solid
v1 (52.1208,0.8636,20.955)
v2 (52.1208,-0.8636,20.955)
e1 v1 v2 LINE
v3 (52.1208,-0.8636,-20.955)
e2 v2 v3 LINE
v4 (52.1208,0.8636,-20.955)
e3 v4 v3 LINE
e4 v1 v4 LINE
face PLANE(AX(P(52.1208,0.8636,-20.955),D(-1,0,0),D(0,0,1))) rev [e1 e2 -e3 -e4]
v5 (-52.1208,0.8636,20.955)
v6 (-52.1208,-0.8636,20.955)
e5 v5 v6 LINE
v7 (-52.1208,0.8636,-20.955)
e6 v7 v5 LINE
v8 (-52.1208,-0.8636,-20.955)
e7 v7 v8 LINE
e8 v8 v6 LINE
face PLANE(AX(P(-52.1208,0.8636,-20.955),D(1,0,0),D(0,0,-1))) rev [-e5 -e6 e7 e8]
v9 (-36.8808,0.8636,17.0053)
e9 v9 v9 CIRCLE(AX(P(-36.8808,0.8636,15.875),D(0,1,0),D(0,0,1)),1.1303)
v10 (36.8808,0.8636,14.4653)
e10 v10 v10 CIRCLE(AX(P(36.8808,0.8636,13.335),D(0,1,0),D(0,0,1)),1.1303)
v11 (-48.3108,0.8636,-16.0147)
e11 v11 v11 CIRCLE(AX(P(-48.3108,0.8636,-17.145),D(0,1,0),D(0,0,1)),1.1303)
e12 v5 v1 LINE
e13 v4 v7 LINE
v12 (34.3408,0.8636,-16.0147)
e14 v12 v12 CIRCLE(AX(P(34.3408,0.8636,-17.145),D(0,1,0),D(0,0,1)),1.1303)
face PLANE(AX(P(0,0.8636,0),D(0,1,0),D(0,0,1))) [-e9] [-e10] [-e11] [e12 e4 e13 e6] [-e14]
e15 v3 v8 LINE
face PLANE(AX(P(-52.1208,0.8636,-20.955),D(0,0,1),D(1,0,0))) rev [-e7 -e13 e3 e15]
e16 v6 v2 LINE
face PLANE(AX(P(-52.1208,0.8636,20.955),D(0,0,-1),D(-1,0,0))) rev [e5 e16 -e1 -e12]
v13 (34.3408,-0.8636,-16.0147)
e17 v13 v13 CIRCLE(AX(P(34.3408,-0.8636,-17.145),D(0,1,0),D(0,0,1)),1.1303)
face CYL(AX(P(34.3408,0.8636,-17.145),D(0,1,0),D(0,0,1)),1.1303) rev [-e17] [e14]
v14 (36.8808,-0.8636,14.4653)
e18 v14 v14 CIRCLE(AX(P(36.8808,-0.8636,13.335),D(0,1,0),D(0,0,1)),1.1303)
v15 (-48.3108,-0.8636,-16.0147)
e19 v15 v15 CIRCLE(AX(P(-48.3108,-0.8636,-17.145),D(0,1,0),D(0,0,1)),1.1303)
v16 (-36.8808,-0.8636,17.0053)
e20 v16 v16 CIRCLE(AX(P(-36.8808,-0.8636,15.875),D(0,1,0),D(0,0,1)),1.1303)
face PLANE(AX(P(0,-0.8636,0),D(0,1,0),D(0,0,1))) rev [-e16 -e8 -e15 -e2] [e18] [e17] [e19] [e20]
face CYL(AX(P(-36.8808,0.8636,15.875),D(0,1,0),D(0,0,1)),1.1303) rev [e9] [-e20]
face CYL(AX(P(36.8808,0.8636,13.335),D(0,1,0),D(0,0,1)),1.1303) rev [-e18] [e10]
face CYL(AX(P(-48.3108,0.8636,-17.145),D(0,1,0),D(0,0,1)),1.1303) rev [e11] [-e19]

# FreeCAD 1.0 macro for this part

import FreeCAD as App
import Part
import Sketcher

V = App.Vector
Q = App.Units.Quantity


def add_polygon(sketch, points):
    """Adds a closed chain of lines whose ends are joined by coincident constraints."""
    first, n = sketch.GeometryCount, len(points)
    for a, b in zip(points, points[1:] + points[:1]):
        sketch.addGeometry(Part.LineSegment(App.Vector(*a, 0), App.Vector(*b, 0)), False)
    for i in range(n):
        sketch.addConstraint(Sketcher.Constraint("Coincident", first + i, 2, first + (i + 1) % n, 1))

doc = App.newDocument("Part")
body = doc.addObject("PartDesign::Body", "Body")

# Sketch on XZ plane
sketch1 = doc.addObject("Sketcher::SketchObject", "Sketch")
body.addObject(sketch1)
sketch1.AttachmentSupport = (doc.XZ_Plane, [""])
sketch1.MapMode = "FlatFace"
add_polygon(sketch1, [(-52, -21), (-52, 21), (52, 21), (52, -21)])  # lines 0-3
sketch1.addConstraint(Sketcher.Constraint("Vertical", 0))
sketch1.addConstraint(Sketcher.Constraint("Horizontal", 1))
sketch1.addConstraint(Sketcher.Constraint("Vertical", 2))
sketch1.addConstraint(Sketcher.Constraint("Horizontal", 3))
sketch1.addConstraint(Sketcher.Constraint("Symmetric", 0, 2, 2, 2, -1, 1))
sketch1.addConstraint(Sketcher.Constraint("DistanceY", 0, 1, 0, 2, Q("1.65 in")))
sketch1.addConstraint(Sketcher.Constraint("DistanceX", 1, 1, 1, 2, Q("4.104 in")))
pad1 = doc.addObject("PartDesign::Pad", "Pad")
body.addObject(pad1)
pad1.Profile = sketch1
pad1.Length = Q("0.068 in")
pad1.Midplane = True

# Sketch on XZ plane
sketch2 = doc.addObject("Sketcher::SketchObject", "Sketch001")
body.addObject(sketch2)
sketch2.AttachmentSupport = (doc.XZ_Plane, [""])
sketch2.MapMode = "FlatFace"
sketch2.AttachmentOffset = App.Placement(V(0, 0, -0.034 * 25.4), App.Rotation())
sketch2.addGeometry(Part.Circle(V(-48.3, -17.1, 0), V(0, 0, 1), 1.1), False)
sketch2.addGeometry(Part.Circle(V(-36.9, 15.9, 0), V(0, 0, 1), 1.1), False)
sketch2.addGeometry(Part.Circle(V(34.3, -17.1, 0), V(0, 0, 1), 1.1), False)
sketch2.addGeometry(Part.Circle(V(36.9, 13.3, 0), V(0, 0, 1), 1.1), False)
sketch2.addConstraint(Sketcher.Constraint("Equal", 0, 1))
sketch2.addConstraint(Sketcher.Constraint("Equal", 1, 2))
sketch2.addConstraint(Sketcher.Constraint("Equal", 2, 3))
sketch2.addConstraint(Sketcher.Constraint("Horizontal", 0, 3, 2, 3))
sketch2.addConstraint(Sketcher.Constraint("Diameter", 0, Q("0.089 in")))
sketch2.addConstraint(Sketcher.Constraint("DistanceY", 0, 3, 1, 3, Q("1.3 in")))
sketch2.addConstraint(Sketcher.Constraint("DistanceX", 2, 3, 3, 3, Q("0.1 in")))
sketch2.addConstraint(Sketcher.Constraint("DistanceY", 2, 3, 3, 3, Q("1.2 in")))
sketch2.addConstraint(Sketcher.Constraint("DistanceX", 0, 3, 1, 3, Q("0.45 in")))
sketch2.addConstraint(Sketcher.Constraint("DistanceX", 0, 3, -1, 1, Q("1.902 in")))
sketch2.addConstraint(Sketcher.Constraint("DistanceY", 0, 3, -1, 1, Q("0.675 in")))
sketch2.addConstraint(Sketcher.Constraint("DistanceX", -1, 1, 2, 3, Q("1.352 in")))
doc.recompute()
hole = doc.addObject("PartDesign::Hole", "Hole")
body.addObject(hole)
hole.Profile = sketch2
hole.ThreadType = "None"
hole.Diameter = Q("0.089 in")
hole.DepthType = "ThroughAll"
hole.Reversed = True

doc.recompute()
